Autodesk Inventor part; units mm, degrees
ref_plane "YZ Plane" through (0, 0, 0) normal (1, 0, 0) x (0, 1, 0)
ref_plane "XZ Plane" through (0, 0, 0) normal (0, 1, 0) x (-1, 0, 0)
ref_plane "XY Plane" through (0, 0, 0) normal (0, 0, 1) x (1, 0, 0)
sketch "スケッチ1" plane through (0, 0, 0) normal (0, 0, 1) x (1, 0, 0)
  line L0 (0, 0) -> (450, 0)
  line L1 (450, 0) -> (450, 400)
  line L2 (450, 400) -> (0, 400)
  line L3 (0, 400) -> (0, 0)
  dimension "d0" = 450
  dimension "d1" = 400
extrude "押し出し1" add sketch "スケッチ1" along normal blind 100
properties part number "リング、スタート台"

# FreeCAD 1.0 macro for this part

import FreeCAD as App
import Part
import Sketcher

V = App.Vector
Q = App.Units.Quantity


def add_polygon(sketch, points):
    """Adds a closed chain of lines whose ends are joined by coincident constraints."""
    first, n = sketch.GeometryCount, len(points)
    for a, b in zip(points, points[1:] + points[:1]):
        sketch.addGeometry(Part.LineSegment(App.Vector(*a, 0), App.Vector(*b, 0)), False)
    for i in range(n):
        sketch.addConstraint(Sketcher.Constraint("Coincident", first + i, 2, first + (i + 1) % n, 1))

doc = App.newDocument("Part")
body = doc.addObject("PartDesign::Body", "Body")

# Sketch on XY plane
sketch1 = body.newObject("Sketcher::SketchObject", "Sketch")
sketch1.AttachmentSupport = (doc.getObject("XY_Plane"), [""])
sketch1.MapMode = "FlatFace"
add_polygon(sketch1, [(0, 400), (0, 0), (450, 0), (450, 400)])  # lines 0-3
sketch1.addConstraint([
    Sketcher.Constraint("Vertical", 0),
    Sketcher.Constraint("Horizontal", 1),
    Sketcher.Constraint("Vertical", 2),
    Sketcher.Constraint("Horizontal", 3),
    Sketcher.Constraint("Coincident", 0, 2, -1, 1),
    Sketcher.Constraint("DistanceX", 1, 1, 1, 2, Q("450 mm")),
    Sketcher.Constraint("DistanceY", 0, 2, 0, 1, Q("400 mm")),
])
pad1 = body.newObject("PartDesign::Pad", "Pad")
pad1.Profile = sketch1
pad1.Length = 100

doc.recompute()
